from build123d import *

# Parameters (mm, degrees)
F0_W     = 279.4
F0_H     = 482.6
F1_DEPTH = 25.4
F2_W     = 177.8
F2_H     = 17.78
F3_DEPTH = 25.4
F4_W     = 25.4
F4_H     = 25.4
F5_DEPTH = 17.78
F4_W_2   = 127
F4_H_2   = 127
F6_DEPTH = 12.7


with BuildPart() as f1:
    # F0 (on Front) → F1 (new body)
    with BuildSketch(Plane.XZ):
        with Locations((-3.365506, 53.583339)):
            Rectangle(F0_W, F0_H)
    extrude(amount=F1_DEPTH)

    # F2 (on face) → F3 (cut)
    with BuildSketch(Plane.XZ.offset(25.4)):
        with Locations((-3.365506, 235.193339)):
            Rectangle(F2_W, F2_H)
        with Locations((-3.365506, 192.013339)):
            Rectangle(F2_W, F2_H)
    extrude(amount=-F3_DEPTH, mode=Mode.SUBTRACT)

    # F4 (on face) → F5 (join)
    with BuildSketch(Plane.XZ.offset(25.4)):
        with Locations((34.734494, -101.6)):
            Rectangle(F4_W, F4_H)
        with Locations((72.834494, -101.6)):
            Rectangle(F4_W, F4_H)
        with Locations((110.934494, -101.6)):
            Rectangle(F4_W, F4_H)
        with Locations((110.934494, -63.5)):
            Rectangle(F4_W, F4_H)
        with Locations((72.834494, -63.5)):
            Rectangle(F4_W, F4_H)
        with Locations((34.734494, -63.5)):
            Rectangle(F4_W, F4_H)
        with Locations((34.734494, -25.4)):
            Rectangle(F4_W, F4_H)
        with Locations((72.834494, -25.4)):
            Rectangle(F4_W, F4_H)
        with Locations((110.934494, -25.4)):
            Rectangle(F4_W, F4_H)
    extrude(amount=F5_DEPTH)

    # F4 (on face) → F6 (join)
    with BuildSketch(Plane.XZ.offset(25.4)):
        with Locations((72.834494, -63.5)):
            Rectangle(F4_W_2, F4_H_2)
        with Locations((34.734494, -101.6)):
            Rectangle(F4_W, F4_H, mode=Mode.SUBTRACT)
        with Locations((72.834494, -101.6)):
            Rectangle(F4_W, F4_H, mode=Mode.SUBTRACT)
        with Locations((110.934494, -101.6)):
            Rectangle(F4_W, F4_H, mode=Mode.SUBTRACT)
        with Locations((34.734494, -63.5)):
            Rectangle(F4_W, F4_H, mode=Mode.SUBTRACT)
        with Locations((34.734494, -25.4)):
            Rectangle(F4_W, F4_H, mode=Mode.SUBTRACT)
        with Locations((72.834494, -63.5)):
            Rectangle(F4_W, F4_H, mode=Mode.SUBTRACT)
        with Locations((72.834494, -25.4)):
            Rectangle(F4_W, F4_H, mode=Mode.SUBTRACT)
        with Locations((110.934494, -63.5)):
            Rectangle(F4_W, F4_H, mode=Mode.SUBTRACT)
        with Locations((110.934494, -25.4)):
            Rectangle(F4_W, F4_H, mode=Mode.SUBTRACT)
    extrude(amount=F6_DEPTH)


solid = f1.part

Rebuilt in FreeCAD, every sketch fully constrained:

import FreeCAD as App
import Part
import Sketcher
Q = App.Units.Quantity


def add_polygon(sketch, points):
    """Adds a closed chain of lines whose ends are joined by coincident constraints."""
    first, n = sketch.GeometryCount, len(points)
    for a, b in zip(points, points[1:] + points[:1]):
        sketch.addGeometry(Part.LineSegment(App.Vector(*a, 0), App.Vector(*b, 0)), False)
    for i in range(n):
        sketch.addConstraint(Sketcher.Constraint("Coincident", first + i, 2, first + (i + 1) % n, 1))

doc = App.newDocument("Part")
body = doc.addObject("PartDesign::Body", "Body")

# Sketch on XZ plane
sketch1 = doc.addObject("Sketcher::SketchObject", "Sketch")
body.addObject(sketch1)
sketch1.AttachmentSupport = (doc.XZ_Plane, [""])
sketch1.MapMode = "FlatFace"
add_polygon(sketch1, [(-143.065506, 294.883339), (-143.065506, -187.716661), (136.334494, -187.716661), (136.334494, 294.883339)])  # lines 0-3
sketch1.addConstraint([
    Sketcher.Constraint("Vertical", 0),
    Sketcher.Constraint("Horizontal", 1),
    Sketcher.Constraint("Vertical", 2),
    Sketcher.Constraint("Horizontal", 3),
    Sketcher.Constraint("DistanceX", 1, 1, 1, 2, Q("11 in")),
    Sketcher.Constraint("DistanceY", 0, 2, 0, 1, Q("19 in")),
    Sketcher.Constraint("DistanceY", 0, 2, -1, 1, 187.716661),
    Sketcher.Constraint("DistanceX", 0, 2, -1, 1, 143.065506),
])
pad1 = doc.addObject("PartDesign::Pad", "Pad")
body.addObject(pad1)
pad1.Profile = sketch1
pad1.Length = Q("1 in")

# Sketch on XZ plane
sketch2 = doc.addObject("Sketcher::SketchObject", "Sketch001")
body.addObject(sketch2)
sketch2.AttachmentSupport = (doc.XZ_Plane, [""])
sketch2.MapMode = "FlatFace"
sketch2.AttachmentOffset = App.Placement(App.Vector(0, 0, 1 * 25.4), App.Rotation())
add_polygon(sketch2, [(-92.265506, 244.083339), (-92.265506, 226.303339), (85.534494, 226.303339), (85.534494, 244.083339)])  # lines 0-3
add_polygon(sketch2, [(-92.265506, 200.903339), (-92.265506, 183.123339), (85.534494, 183.123339), (85.534494, 200.903339)])  # lines 4-7
sketch2.addConstraint([
    Sketcher.Constraint("Vertical", 0),
    Sketcher.Constraint("Horizontal", 1),
    Sketcher.Constraint("Vertical", 2),
    Sketcher.Constraint("Horizontal", 3),
    Sketcher.Constraint("Vertical", 4),
    Sketcher.Constraint("Horizontal", 5),
    Sketcher.Constraint("Vertical", 6),
    Sketcher.Constraint("Horizontal", 7),
    Sketcher.Constraint("Vertical", 3, 2, 4, 2),
    Sketcher.Constraint("Vertical", 2, 2, 5, 2),
    Sketcher.Constraint("Equal", 2, 4),
    Sketcher.Constraint("DistanceX", 1, 1, 1, 2, Q("7 in")),
    Sketcher.Constraint("DistanceY", 0, 2, 0, 1, Q("0.7 in")),
    Sketcher.Constraint("DistanceY", 6, 2, 1, 2, Q("1 in")),
    Sketcher.Constraint("DistanceY", -1, 1, 0, 2, 226.303339),
    Sketcher.Constraint("DistanceX", 0, 2, -1, 1, 92.265506),
])
pocket1 = doc.addObject("PartDesign::Pocket", "Pocket")
body.addObject(pocket1)
pocket1.Profile = sketch2
pocket1.Length = Q("1 in")

# Sketch on XZ plane
sketch3 = doc.addObject("Sketcher::SketchObject", "Sketch002")
body.addObject(sketch3)
sketch3.AttachmentSupport = (doc.XZ_Plane, [""])
sketch3.MapMode = "FlatFace"
sketch3.AttachmentOffset = App.Placement(App.Vector(0, 0, 1 * 25.4), App.Rotation())
add_polygon(sketch3, [(22.034494, -88.9), (22.034494, -114.3), (47.434494, -114.3), (47.434494, -88.9)])  # lines 0-3
add_polygon(sketch3, [(60.134494, -88.9), (60.134494, -114.3), (85.534494, -114.3), (85.534494, -88.9)])  # lines 4-7
add_polygon(sketch3, [(98.234494, -88.9), (98.234494, -114.3), (123.634494, -114.3), (123.634494, -88.9)])  # lines 8-11
add_polygon(sketch3, [(98.234494, -50.8), (98.234494, -76.2), (123.634494, -76.2), (123.634494, -50.8)])  # lines 12-15
add_polygon(sketch3, [(60.134494, -50.8), (60.134494, -76.2), (85.534494, -76.2), (85.534494, -50.8)])  # lines 16-19
add_polygon(sketch3, [(22.034494, -50.8), (22.034494, -76.2), (47.434494, -76.2), (47.434494, -50.8)])  # lines 20-23
add_polygon(sketch3, [(22.034494, -12.7), (22.034494, -38.1), (47.434494, -38.1), (47.434494, -12.7)])  # lines 24-27
add_polygon(sketch3, [(60.134494, -12.7), (60.134494, -38.1), (85.534494, -38.1), (85.534494, -12.7)])  # lines 28-31
add_polygon(sketch3, [(98.234494, -12.7), (98.234494, -38.1), (123.634494, -38.1), (123.634494, -12.7)])  # lines 32-35
sketch3.addConstraint([
    Sketcher.Constraint("Vertical", 0),
    Sketcher.Constraint("Horizontal", 1),
    Sketcher.Constraint("Vertical", 2),
    Sketcher.Constraint("Horizontal", 3),
    Sketcher.Constraint("Vertical", 4),
    Sketcher.Constraint("Horizontal", 5),
    Sketcher.Constraint("Vertical", 6),
    Sketcher.Constraint("Horizontal", 7),
    Sketcher.Constraint("Vertical", 8),
    Sketcher.Constraint("Horizontal", 9),
    Sketcher.Constraint("Vertical", 10),
    Sketcher.Constraint("Horizontal", 11),
    Sketcher.Constraint("Vertical", 12),
    Sketcher.Constraint("Horizontal", 13),
    Sketcher.Constraint("Vertical", 14),
    Sketcher.Constraint("Horizontal", 15),
    Sketcher.Constraint("Vertical", 16),
    Sketcher.Constraint("Horizontal", 17),
    Sketcher.Constraint("Vertical", 18),
    Sketcher.Constraint("Horizontal", 19),
    Sketcher.Constraint("Vertical", 20),
    Sketcher.Constraint("Horizontal", 21),
    Sketcher.Constraint("Vertical", 22),
    Sketcher.Constraint("Horizontal", 23),
    Sketcher.Constraint("Vertical", 24),
    Sketcher.Constraint("Horizontal", 25),
    Sketcher.Constraint("Vertical", 26),
    Sketcher.Constraint("Horizontal", 27),
    Sketcher.Constraint("Vertical", 28),
    Sketcher.Constraint("Horizontal", 29),
    Sketcher.Constraint("Vertical", 30),
    Sketcher.Constraint("Horizontal", 31),
    Sketcher.Constraint("Vertical", 32),
    Sketcher.Constraint("Horizontal", 33),
    Sketcher.Constraint("Vertical", 34),
    Sketcher.Constraint("Horizontal", 35),
    Sketcher.Constraint("Horizontal", 1, 2, 4, 2),
    Sketcher.Constraint("Horizontal", 3, 2, 6, 2),
    Sketcher.Constraint("Horizontal", 5, 2, 8, 2),
    Sketcher.Constraint("Horizontal", 7, 2, 10, 2),
    Sketcher.Constraint("Horizontal", 13, 2, 16, 2),
    Sketcher.Constraint("Horizontal", 15, 2, 18, 2),
    Sketcher.Constraint("Horizontal", 17, 2, 20, 2),
    Sketcher.Constraint("Horizontal", 19, 2, 22, 2),
    Sketcher.Constraint("Horizontal", 25, 2, 28, 2),
    Sketcher.Constraint("Horizontal", 27, 2, 30, 2),
    Sketcher.Constraint("Horizontal", 29, 2, 32, 2),
    Sketcher.Constraint("Horizontal", 31, 2, 34, 2),
    Sketcher.Constraint("Vertical", 11, 2, 12, 2),
    Sketcher.Constraint("Vertical", 10, 2, 13, 2),
    Sketcher.Constraint("Vertical", 7, 2, 16, 2),
    Sketcher.Constraint("Vertical", 6, 2, 17, 2),
    Sketcher.Constraint("Vertical", 3, 2, 20, 2),
    Sketcher.Constraint("Vertical", 2, 2, 21, 2),
    Sketcher.Constraint("Vertical", 23, 2, 24, 2),
    Sketcher.Constraint("Vertical", 22, 2, 25, 2),
    Sketcher.Constraint("Vertical", 19, 2, 28, 2),
    Sketcher.Constraint("Vertical", 18, 2, 29, 2),
    Sketcher.Constraint("Vertical", 15, 2, 32, 2),
    Sketcher.Constraint("Vertical", 14, 2, 33, 2),
    Sketcher.Constraint("Equal", 3, 5),
    Sketcher.Constraint("Equal", 7, 9),
    Sketcher.Constraint("Equal", 35, 0),
    Sketcher.Constraint("Equal", 10, 12),
    Sketcher.Constraint("Equal", 22, 24),
    Sketcher.Constraint("DistanceX", 1, 1, 1, 2, Q("1 in")),
    Sketcher.Constraint("DistanceY", 12, 2, -1, 1, Q("3 in")),
    Sketcher.Constraint("DistanceX", 1, 2, 8, 2, Q("2 in")),
    Sketcher.Constraint("DistanceY", 0, 2, -1, 1, Q("4.5 in")),
    Sketcher.Constraint("DistanceY", 24, 2, -1, 1, Q("1.5 in")),
    Sketcher.Constraint("DistanceX", 1, 2, 4, 2, Q("0.5 in")),
    Sketcher.Constraint("DistanceX", -1, 1, 0, 2, 22.034494),
])
pad2 = doc.addObject("PartDesign::Pad", "Pad001")
body.addObject(pad2)
pad2.Profile = sketch3
pad2.Length = Q("0.7 in")

# Sketch on XZ plane
sketch4 = doc.addObject("Sketcher::SketchObject", "Sketch003")
body.addObject(sketch4)
sketch4.AttachmentSupport = (doc.XZ_Plane, [""])
sketch4.MapMode = "FlatFace"
sketch4.AttachmentOffset = App.Placement(App.Vector(0, 0, 1 * 25.4), App.Rotation())
add_polygon(sketch4, [(9.334494, 0), (9.334494, -127), (136.334494, -127), (136.334494, 0)])  # lines 0-3
add_polygon(sketch4, [(47.434494, -114.3), (22.034494, -114.3), (22.034494, -88.9), (47.434494, -88.9)])  # lines 4-7
add_polygon(sketch4, [(47.434494, -76.2), (22.034494, -76.2), (22.034494, -50.8), (47.434494, -50.8)])  # lines 8-11
add_polygon(sketch4, [(85.534494, -114.3), (60.134494, -114.3), (60.134494, -88.9), (85.534494, -88.9)])  # lines 12-15
add_polygon(sketch4, [(123.634494, -114.3), (98.234494, -114.3), (98.234494, -88.9), (123.634494, -88.9)])  # lines 16-19
add_polygon(sketch4, [(85.534494, -76.2), (60.134494, -76.2), (60.134494, -50.8), (85.534494, -50.8)])  # lines 20-23
add_polygon(sketch4, [(123.634494, -76.2), (98.234494, -76.2), (98.234494, -50.8), (123.634494, -50.8)])  # lines 24-27
add_polygon(sketch4, [(47.434494, -38.1), (22.034494, -38.1), (22.034494, -12.7), (47.434494, -12.7)])  # lines 28-31
add_polygon(sketch4, [(85.534494, -38.1), (60.134494, -38.1), (60.134494, -12.7), (85.534494, -12.7)])  # lines 32-35
add_polygon(sketch4, [(123.634494, -38.1), (98.234494, -38.1), (98.234494, -12.7), (123.634494, -12.7)])  # lines 36-39
sketch4.addConstraint([
    Sketcher.Constraint("Vertical", 0),
    Sketcher.Constraint("Horizontal", 1),
    Sketcher.Constraint("Vertical", 2),
    Sketcher.Constraint("Horizontal", 3),
    Sketcher.Constraint("Horizontal", 4),
    Sketcher.Constraint("Vertical", 5),
    Sketcher.Constraint("Horizontal", 6),
    Sketcher.Constraint("Vertical", 7),
    Sketcher.Constraint("Horizontal", 8),
    Sketcher.Constraint("Vertical", 9),
    Sketcher.Constraint("Horizontal", 10),
    Sketcher.Constraint("Vertical", 11),
    Sketcher.Constraint("Horizontal", 12),
    Sketcher.Constraint("Vertical", 13),
    Sketcher.Constraint("Horizontal", 14),
    Sketcher.Constraint("Vertical", 15),
    Sketcher.Constraint("Horizontal", 16),
    Sketcher.Constraint("Vertical", 17),
    Sketcher.Constraint("Horizontal", 18),
    Sketcher.Constraint("Vertical", 19),
    Sketcher.Constraint("Horizontal", 20),
    Sketcher.Constraint("Vertical", 21),
    Sketcher.Constraint("Horizontal", 22),
    Sketcher.Constraint("Vertical", 23),
    Sketcher.Constraint("Horizontal", 24),
    Sketcher.Constraint("Vertical", 25),
    Sketcher.Constraint("Horizontal", 26),
    Sketcher.Constraint("Vertical", 27),
    Sketcher.Constraint("Horizontal", 28),
    Sketcher.Constraint("Vertical", 29),
    Sketcher.Constraint("Horizontal", 30),
    Sketcher.Constraint("Vertical", 31),
    Sketcher.Constraint("Horizontal", 32),
    Sketcher.Constraint("Vertical", 33),
    Sketcher.Constraint("Horizontal", 34),
    Sketcher.Constraint("Vertical", 35),
    Sketcher.Constraint("Horizontal", 36),
    Sketcher.Constraint("Vertical", 37),
    Sketcher.Constraint("Horizontal", 38),
    Sketcher.Constraint("Vertical", 39),
    Sketcher.Constraint("PointOnObject", 2, 2, -1),
    Sketcher.Constraint("Horizontal", 7, 2, 12, 2),
    Sketcher.Constraint("Horizontal", 6, 2, 13, 2),
    Sketcher.Constraint("Horizontal", 15, 2, 16, 2),
    Sketcher.Constraint("Horizontal", 14, 2, 17, 2),
    Sketcher.Constraint("Horizontal", 11, 2, 20, 2),
    Sketcher.Constraint("Horizontal", 10, 2, 21, 2),
    Sketcher.Constraint("Horizontal", 23, 2, 24, 2),
    Sketcher.Constraint("Horizontal", 22, 2, 25, 2),
    Sketcher.Constraint("Horizontal", 31, 2, 32, 2),
    Sketcher.Constraint("Horizontal", 30, 2, 33, 2),
    Sketcher.Constraint("Horizontal", 35, 2, 36, 2),
    Sketcher.Constraint("Horizontal", 34, 2, 37, 2),
    Sketcher.Constraint("Vertical", 5, 2, 8, 2),
    Sketcher.Constraint("Vertical", 7, 2, 10, 2),
    Sketcher.Constraint("Vertical", 13, 2, 20, 2),
    Sketcher.Constraint("Vertical", 15, 2, 22, 2),
    Sketcher.Constraint("Vertical", 17, 2, 24, 2),
    Sketcher.Constraint("Vertical", 19, 2, 26, 2),
    Sketcher.Constraint("Vertical", 9, 2, 28, 2),
    Sketcher.Constraint("Vertical", 11, 2, 30, 2),
    Sketcher.Constraint("Vertical", 21, 2, 32, 2),
    Sketcher.Constraint("Vertical", 23, 2, 34, 2),
    Sketcher.Constraint("Vertical", 25, 2, 36, 2),
    Sketcher.Constraint("Vertical", 27, 2, 38, 2),
    Sketcher.Constraint("Equal", 10, 12),
    Sketcher.Constraint("Equal", 14, 16),
    Sketcher.Constraint("Equal", 3, 0),
    Sketcher.Constraint("Equal", 38, 5),
    Sketcher.Constraint("Equal", 7, 9),
    Sketcher.Constraint("Equal", 27, 29),
    Sketcher.Constraint("DistanceX", 1, 1, 1, 2, Q("5 in")),
    Sketcher.Constraint("DistanceX", 4, 2, 4, 1, Q("1 in")),
    Sketcher.Constraint("DistanceY", 8, 2, -1, 1, Q("3 in")),
    Sketcher.Constraint("DistanceY", 4, 2, -1, 1, Q("4.5 in")),
    Sketcher.Constraint("DistanceY", 28, 2, -1, 1, Q("1.5 in")),
    Sketcher.Constraint("DistanceX", 0, 2, 4, 2, Q("0.5 in")),
    Sketcher.Constraint("DistanceX", 7, 2, 12, 2, Q("0.5 in")),
    Sketcher.Constraint("DistanceX", 15, 2, 16, 2, Q("0.5 in")),
    Sketcher.Constraint("DistanceX", -1, 1, 0, 2, 9.334494),
])
pad3 = doc.addObject("PartDesign::Pad", "Pad002")
body.addObject(pad3)
pad3.Profile = sketch4
pad3.Length = Q("0.5 in")

doc.recompute()
